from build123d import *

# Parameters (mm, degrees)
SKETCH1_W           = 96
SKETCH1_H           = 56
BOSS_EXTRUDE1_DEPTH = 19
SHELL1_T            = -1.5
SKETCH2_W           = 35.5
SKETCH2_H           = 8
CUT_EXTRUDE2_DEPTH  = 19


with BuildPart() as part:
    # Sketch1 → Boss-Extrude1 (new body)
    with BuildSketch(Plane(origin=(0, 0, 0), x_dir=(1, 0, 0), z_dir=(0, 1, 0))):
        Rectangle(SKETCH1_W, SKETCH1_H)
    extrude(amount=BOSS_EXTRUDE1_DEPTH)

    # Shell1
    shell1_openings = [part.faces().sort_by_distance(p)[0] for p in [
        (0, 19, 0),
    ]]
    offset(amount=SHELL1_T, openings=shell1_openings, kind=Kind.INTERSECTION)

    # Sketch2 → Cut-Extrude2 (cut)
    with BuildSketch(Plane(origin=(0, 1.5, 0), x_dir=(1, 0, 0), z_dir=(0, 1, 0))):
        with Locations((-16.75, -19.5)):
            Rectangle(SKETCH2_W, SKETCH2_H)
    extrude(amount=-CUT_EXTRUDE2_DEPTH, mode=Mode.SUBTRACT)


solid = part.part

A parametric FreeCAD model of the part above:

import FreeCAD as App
import Part
import Sketcher


def faces_at(feature, points):
    """Names of the faces that lie closest to the given points."""
    faces = feature.Shape.Faces
    near = lambda p: min(range(len(faces)), key=lambda i: faces[i].distToShape(Part.Vertex(*p))[0])
    return sorted({f"Face{near(p) + 1}" for p in points})


def add_polygon(sketch, points):
    """Adds a closed chain of lines whose ends are joined by coincident constraints."""
    first, n = sketch.GeometryCount, len(points)
    for a, b in zip(points, points[1:] + points[:1]):
        sketch.addGeometry(Part.LineSegment(App.Vector(*a, 0), App.Vector(*b, 0)), False)
    for i in range(n):
        sketch.addConstraint(Sketcher.Constraint("Coincident", first + i, 2, first + (i + 1) % n, 1))

doc = App.newDocument("Part")
params = doc.addObject("Spreadsheet::Sheet", "Params")
for row, (alias, value) in enumerate([
    ("sketch1_width", "96 mm"),
    ("sketch1_height", "56 mm"),
    ("pad1_length", "19 mm"),
    ("thickness_wall", "1.5 mm"),
    ("sketch2_height", "8 mm"),
    ("sketch2_width", "35.5 mm"),
    ("pocket1_length", "19 mm"),
], start=1):
    params.set(f"A{row}", alias)
    params.set(f"B{row}", "=" + value)
    params.setAlias(f"B{row}", alias)

body = doc.addObject("PartDesign::Body", "Body")

# Sketch on XZ plane
sketch1 = doc.addObject("Sketcher::SketchObject", "Sketch")
body.addObject(sketch1)
sketch1.AttachmentSupport = (doc.XZ_Plane, [""])
sketch1.MapMode = "FlatFace"
add_polygon(sketch1, [(-48, -28), (-48, 28), (48, 28), (48, -28)])  # lines 0-3
sketch1.addConstraint([
    Sketcher.Constraint("Vertical", 0),
    Sketcher.Constraint("Horizontal", 1),
    Sketcher.Constraint("Vertical", 2),
    Sketcher.Constraint("Horizontal", 3),
    Sketcher.Constraint("Symmetric", 0, 2, 2, 2, -1, 1),
    Sketcher.Constraint("DistanceX", 1, 1, 1, 2, 96.0),
    Sketcher.Constraint("DistanceY", 0, 1, 0, 2, 56.0),
])
sketch1.setExpression("Constraints[9]", "Params.sketch1_width")
sketch1.setExpression("Constraints[10]", "Params.sketch1_height")
pad1 = doc.addObject("PartDesign::Pad", "Pad")
body.addObject(pad1)
pad1.Profile = sketch1
pad1.setExpression("Length", "Params.pad1_length")
pad1.Reversed = True
doc.recompute()

thickness = doc.addObject("PartDesign::Thickness", "Thickness")
body.addObject(thickness)
thickness.Base = (pad1, faces_at(pad1, [(0, 19, 0)]))
thickness.setExpression("Value", "Params.thickness_wall")
thickness.Reversed = True
thickness.Join = "Intersection"

# Sketch on XZ plane
sketch2 = doc.addObject("Sketcher::SketchObject", "Sketch001")
body.addObject(sketch2)
sketch2.AttachmentSupport = (doc.XZ_Plane, [""])
sketch2.MapMode = "FlatFace"
sketch2.AttachmentOffset = App.Placement(App.Vector(0, 0, -1.5), App.Rotation())
add_polygon(sketch2, [(-34, 16), (-34, 24), (1, 24), (1, 16)])  # lines 0-3
sketch2.addConstraint([
    Sketcher.Constraint("Vertical", 0),
    Sketcher.Constraint("Horizontal", 1),
    Sketcher.Constraint("Vertical", 2),
    Sketcher.Constraint("Horizontal", 3),
    Sketcher.Constraint("DistanceY", 0, 1, 0, 2, 8.0),
    Sketcher.Constraint("DistanceX", 1, 1, 1, 2, 35.5),
    Sketcher.Constraint("DistanceX", -1, 1, 1, 2, 1.0),
    Sketcher.Constraint("DistanceY", -1, 1, 0, 2, 23.5),
])
sketch2.setExpression("Constraints[8]", "Params.sketch2_height")
sketch2.setExpression("Constraints[9]", "Params.sketch2_width")
pocket1 = doc.addObject("PartDesign::Pocket", "Pocket")
body.addObject(pocket1)
pocket1.Profile = sketch2
pocket1.setExpression("Length", "Params.pocket1_length")
pocket1.Reversed = True

doc.recompute()
